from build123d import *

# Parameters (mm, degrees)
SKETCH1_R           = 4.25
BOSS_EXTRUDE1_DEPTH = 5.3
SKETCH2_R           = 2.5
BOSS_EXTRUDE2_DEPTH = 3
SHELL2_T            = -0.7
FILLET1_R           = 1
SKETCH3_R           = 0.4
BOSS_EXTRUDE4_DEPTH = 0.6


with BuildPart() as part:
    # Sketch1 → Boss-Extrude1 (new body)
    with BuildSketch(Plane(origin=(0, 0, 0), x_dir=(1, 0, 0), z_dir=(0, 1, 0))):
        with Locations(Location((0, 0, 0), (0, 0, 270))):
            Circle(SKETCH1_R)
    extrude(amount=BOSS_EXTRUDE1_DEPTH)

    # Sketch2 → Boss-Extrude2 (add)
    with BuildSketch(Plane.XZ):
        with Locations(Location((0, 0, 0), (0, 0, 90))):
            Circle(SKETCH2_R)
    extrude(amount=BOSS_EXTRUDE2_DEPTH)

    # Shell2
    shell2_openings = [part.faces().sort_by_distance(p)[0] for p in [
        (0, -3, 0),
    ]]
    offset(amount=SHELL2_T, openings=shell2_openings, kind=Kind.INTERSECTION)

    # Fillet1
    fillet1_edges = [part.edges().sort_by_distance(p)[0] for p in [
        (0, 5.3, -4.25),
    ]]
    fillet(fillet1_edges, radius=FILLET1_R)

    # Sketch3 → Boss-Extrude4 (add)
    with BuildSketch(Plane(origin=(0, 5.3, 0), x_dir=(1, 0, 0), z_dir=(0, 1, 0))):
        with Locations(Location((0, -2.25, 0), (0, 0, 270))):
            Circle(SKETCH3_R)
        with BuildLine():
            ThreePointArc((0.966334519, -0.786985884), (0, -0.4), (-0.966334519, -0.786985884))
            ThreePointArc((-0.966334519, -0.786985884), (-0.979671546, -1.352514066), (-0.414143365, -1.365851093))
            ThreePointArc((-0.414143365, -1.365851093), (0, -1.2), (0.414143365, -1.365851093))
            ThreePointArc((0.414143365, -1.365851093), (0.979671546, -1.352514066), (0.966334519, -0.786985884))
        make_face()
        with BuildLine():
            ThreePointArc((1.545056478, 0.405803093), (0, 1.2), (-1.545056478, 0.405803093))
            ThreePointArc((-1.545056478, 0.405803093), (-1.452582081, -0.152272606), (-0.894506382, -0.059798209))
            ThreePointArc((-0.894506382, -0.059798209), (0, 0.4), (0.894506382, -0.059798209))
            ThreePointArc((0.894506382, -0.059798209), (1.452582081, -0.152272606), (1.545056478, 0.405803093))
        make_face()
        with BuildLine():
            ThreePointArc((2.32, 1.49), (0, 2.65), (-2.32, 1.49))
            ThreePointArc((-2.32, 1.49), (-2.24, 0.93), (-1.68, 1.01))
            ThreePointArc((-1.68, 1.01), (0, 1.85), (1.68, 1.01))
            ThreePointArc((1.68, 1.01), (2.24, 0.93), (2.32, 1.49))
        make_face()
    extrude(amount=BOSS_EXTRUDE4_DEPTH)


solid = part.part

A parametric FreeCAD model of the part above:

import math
import FreeCAD as App
import Part
import Sketcher
Q = App.Units.Quantity


def edges_at(feature, points):
    """Names of the edges that pass closest to the given points."""
    edges = feature.Shape.Edges
    near = lambda p: min(range(len(edges)), key=lambda i: edges[i].distToShape(Part.Vertex(*p))[0])
    return sorted({f"Edge{near(p) + 1}" for p in points})


def faces_at(feature, points):
    """Names of the faces that lie closest to the given points."""
    faces = feature.Shape.Faces
    near = lambda p: min(range(len(faces)), key=lambda i: faces[i].distToShape(Part.Vertex(*p))[0])
    return sorted({f"Face{near(p) + 1}" for p in points})

doc = App.newDocument("Part")
body = doc.addObject("PartDesign::Body", "Body")

sketch1 = doc.addObject("Sketcher::SketchObject", "Sketch")
body.addObject(sketch1)
sketch1.AttachmentSupport = (doc.XZ_Plane, [""])
sketch1.MapMode = "FlatFace"
sketch1.addGeometry(Part.Circle(App.Vector(0, 0, 0), App.Vector(0, 0, 1), 4.25), False)
sketch1.addConstraint([
    Sketcher.Constraint("Coincident", 0, 3, -1, 1),
    Sketcher.Constraint("Diameter", 0, Q("8.5 mm")),
])
pad1 = doc.addObject("PartDesign::Pad", "Pad")
body.addObject(pad1)
pad1.Profile = sketch1
pad1.Length = 5.3
pad1.Reversed = True

sketch2 = doc.addObject("Sketcher::SketchObject", "Sketch001")
body.addObject(sketch2)
sketch2.AttachmentSupport = (doc.XZ_Plane, [""])
sketch2.MapMode = "FlatFace"
sketch2.addGeometry(Part.Circle(App.Vector(0, 0, 0), App.Vector(0, 0, 1), 2.5), False)
sketch2.addConstraint([
    Sketcher.Constraint("Coincident", 0, 3, -1, 1),
    Sketcher.Constraint("Diameter", 0, Q("5 mm")),
])
pad2 = doc.addObject("PartDesign::Pad", "Pad001")
body.addObject(pad2)
pad2.Profile = sketch2
pad2.Length = 3
doc.recompute()

thickness = doc.addObject("PartDesign::Thickness", "Thickness")
body.addObject(thickness)
thickness.Base = (pad2, faces_at(pad2, [(0, -3, 0)]))
thickness.Value = 0.7
thickness.Reversed = True
thickness.Join = "Intersection"
doc.recompute()

fillet = doc.addObject("PartDesign::Fillet", "Fillet")
body.addObject(fillet)
fillet.Base = (thickness, edges_at(thickness, [(0, 5.3, -4.25)]))
fillet.Radius = 1

sketch3 = doc.addObject("Sketcher::SketchObject", "Sketch002")
body.addObject(sketch3)
sketch3.AttachmentSupport = (doc.XZ_Plane, [""])
sketch3.MapMode = "FlatFace"
sketch3.AttachmentOffset = App.Placement(App.Vector(0, 0, -5.3), App.Rotation())
sketch3.addGeometry([
    Part.Circle(App.Vector(0, 2.25, 0), App.Vector(0, 0, 1), 0.4),
    Part.ArcOfCircle(Part.Circle(App.Vector(0, 1.8, 0), App.Vector(0, 0, 1), 1.4), math.radians(-133.649026), math.radians(-46.350974)),
    Part.ArcOfCircle(Part.Circle(App.Vector(-0.690239, 1.076418, 0), App.Vector(0, 0, 1), 0.4), math.radians(46.350974), math.radians(226.350974)),
    Part.ArcOfCircle(Part.Circle(App.Vector(0, 1.8, 0), App.Vector(0, 0, 1), 0.6), math.radians(-133.649026), math.radians(-46.350974)),
    Part.ArcOfCircle(Part.Circle(App.Vector(0.690239, 1.076418, 0), App.Vector(0, 0, 1), 0.4), math.radians(-46.350974), math.radians(133.649026)),
    Part.ArcOfCircle(Part.Circle(App.Vector(0, 0.7, 0), App.Vector(0, 0, 1), 1.9), math.radians(-144.40855), math.radians(-35.59145)),
    Part.ArcOfCircle(Part.Circle(App.Vector(-1.219781, -0.173002, 0), App.Vector(0, 0, 1), 0.4), math.radians(35.59145), math.radians(215.59145)),
    Part.ArcOfCircle(Part.Circle(App.Vector(0, 0.7, 0), App.Vector(0, 0, 1), 1.1), math.radians(-144.40855), math.radians(-35.59145)),
    Part.ArcOfCircle(Part.Circle(App.Vector(1.219781, -0.173002, 0), App.Vector(0, 0, 1), 0.4), math.radians(-35.59145), math.radians(144.40855)),
    Part.ArcOfCircle(Part.Circle(App.Vector(0, 0.25, 0), App.Vector(0, 0, 1), 2.9), math.radians(-143.130102), math.radians(-36.869898)),
    Part.ArcOfCircle(Part.Circle(App.Vector(-2, -1.25, 0), App.Vector(0, 0, 1), 0.4), math.radians(36.869898), math.radians(216.869898)),
    Part.ArcOfCircle(Part.Circle(App.Vector(0, 0.25, 0), App.Vector(0, 0, 1), 2.1), math.radians(-143.130102), math.radians(-36.869898)),
    Part.ArcOfCircle(Part.Circle(App.Vector(2, -1.25, 0), App.Vector(0, 0, 1), 0.4), math.radians(-36.869898), math.radians(143.130102)),
], False)
sketch3.addConstraint([
    Sketcher.Constraint("Tangent", 1, 1, 2, 2),
    Sketcher.Constraint("Tangent", 2, 1, 3, 1),
    Sketcher.Constraint("Tangent", 3, 2, 4, 2),
    Sketcher.Constraint("Tangent", 4, 1, 1, 2),
    Sketcher.Constraint("Tangent", 5, 1, 6, 2),
    Sketcher.Constraint("Tangent", 6, 1, 7, 1),
    Sketcher.Constraint("Tangent", 7, 2, 8, 2),
    Sketcher.Constraint("Tangent", 8, 1, 5, 2),
    Sketcher.Constraint("Tangent", 9, 1, 10, 2),
    Sketcher.Constraint("Tangent", 10, 1, 11, 1),
    Sketcher.Constraint("Tangent", 11, 2, 12, 2),
    Sketcher.Constraint("Tangent", 12, 1, 9, 2),
    Sketcher.Constraint("Coincident", 3, 3, 1, 3),
    Sketcher.Constraint("Coincident", 7, 3, 5, 3),
    Sketcher.Constraint("Coincident", 11, 3, 9, 3),
    Sketcher.Constraint("Equal", 0, 2),
    Sketcher.Constraint("Equal", 4, 6),
    Sketcher.Constraint("Equal", 8, 10),
    Sketcher.Constraint("Symmetric", 2, 3, 4, 3, -2),
    Sketcher.Constraint("Symmetric", 6, 3, 8, 3, -2),
    Sketcher.Constraint("Symmetric", 10, 3, 12, 3, -2),
    Sketcher.Constraint("PointOnObject", 0, 3, -2),
    Sketcher.Constraint("Diameter", 0, Q("0.8 mm")),
    Sketcher.Constraint("Radius", 1, Q("1.4 mm")),
    Sketcher.Constraint("Radius", 5, Q("1.9 mm")),
    Sketcher.Constraint("Radius", 9, Q("2.9 mm")),
    Sketcher.Constraint("DistanceX", 10, 3, -1, 1, Q("2 mm")),
    Sketcher.Constraint("DistanceY", -1, 1, 1, 3, Q("1.8 mm")),
    Sketcher.Constraint("DistanceY", -1, 1, 5, 3, Q("0.7 mm")),
    Sketcher.Constraint("DistanceY", -1, 1, 0, 3, Q("2.25 mm")),
    Sketcher.Constraint("DistanceY", -1, 1, 9, 3, Q("0.25 mm")),
    Sketcher.Constraint("DistanceY", -1, 1, 6, 1, Q("0.059798 mm")),
    Sketcher.Constraint("DistanceX", 2, 3, -1, 1, Q("0.690239 mm")),
])
pad3 = doc.addObject("PartDesign::Pad", "Pad002")
body.addObject(pad3)
pad3.Profile = sketch3
pad3.Length = 0.6
pad3.Reversed = True

doc.recompute()
